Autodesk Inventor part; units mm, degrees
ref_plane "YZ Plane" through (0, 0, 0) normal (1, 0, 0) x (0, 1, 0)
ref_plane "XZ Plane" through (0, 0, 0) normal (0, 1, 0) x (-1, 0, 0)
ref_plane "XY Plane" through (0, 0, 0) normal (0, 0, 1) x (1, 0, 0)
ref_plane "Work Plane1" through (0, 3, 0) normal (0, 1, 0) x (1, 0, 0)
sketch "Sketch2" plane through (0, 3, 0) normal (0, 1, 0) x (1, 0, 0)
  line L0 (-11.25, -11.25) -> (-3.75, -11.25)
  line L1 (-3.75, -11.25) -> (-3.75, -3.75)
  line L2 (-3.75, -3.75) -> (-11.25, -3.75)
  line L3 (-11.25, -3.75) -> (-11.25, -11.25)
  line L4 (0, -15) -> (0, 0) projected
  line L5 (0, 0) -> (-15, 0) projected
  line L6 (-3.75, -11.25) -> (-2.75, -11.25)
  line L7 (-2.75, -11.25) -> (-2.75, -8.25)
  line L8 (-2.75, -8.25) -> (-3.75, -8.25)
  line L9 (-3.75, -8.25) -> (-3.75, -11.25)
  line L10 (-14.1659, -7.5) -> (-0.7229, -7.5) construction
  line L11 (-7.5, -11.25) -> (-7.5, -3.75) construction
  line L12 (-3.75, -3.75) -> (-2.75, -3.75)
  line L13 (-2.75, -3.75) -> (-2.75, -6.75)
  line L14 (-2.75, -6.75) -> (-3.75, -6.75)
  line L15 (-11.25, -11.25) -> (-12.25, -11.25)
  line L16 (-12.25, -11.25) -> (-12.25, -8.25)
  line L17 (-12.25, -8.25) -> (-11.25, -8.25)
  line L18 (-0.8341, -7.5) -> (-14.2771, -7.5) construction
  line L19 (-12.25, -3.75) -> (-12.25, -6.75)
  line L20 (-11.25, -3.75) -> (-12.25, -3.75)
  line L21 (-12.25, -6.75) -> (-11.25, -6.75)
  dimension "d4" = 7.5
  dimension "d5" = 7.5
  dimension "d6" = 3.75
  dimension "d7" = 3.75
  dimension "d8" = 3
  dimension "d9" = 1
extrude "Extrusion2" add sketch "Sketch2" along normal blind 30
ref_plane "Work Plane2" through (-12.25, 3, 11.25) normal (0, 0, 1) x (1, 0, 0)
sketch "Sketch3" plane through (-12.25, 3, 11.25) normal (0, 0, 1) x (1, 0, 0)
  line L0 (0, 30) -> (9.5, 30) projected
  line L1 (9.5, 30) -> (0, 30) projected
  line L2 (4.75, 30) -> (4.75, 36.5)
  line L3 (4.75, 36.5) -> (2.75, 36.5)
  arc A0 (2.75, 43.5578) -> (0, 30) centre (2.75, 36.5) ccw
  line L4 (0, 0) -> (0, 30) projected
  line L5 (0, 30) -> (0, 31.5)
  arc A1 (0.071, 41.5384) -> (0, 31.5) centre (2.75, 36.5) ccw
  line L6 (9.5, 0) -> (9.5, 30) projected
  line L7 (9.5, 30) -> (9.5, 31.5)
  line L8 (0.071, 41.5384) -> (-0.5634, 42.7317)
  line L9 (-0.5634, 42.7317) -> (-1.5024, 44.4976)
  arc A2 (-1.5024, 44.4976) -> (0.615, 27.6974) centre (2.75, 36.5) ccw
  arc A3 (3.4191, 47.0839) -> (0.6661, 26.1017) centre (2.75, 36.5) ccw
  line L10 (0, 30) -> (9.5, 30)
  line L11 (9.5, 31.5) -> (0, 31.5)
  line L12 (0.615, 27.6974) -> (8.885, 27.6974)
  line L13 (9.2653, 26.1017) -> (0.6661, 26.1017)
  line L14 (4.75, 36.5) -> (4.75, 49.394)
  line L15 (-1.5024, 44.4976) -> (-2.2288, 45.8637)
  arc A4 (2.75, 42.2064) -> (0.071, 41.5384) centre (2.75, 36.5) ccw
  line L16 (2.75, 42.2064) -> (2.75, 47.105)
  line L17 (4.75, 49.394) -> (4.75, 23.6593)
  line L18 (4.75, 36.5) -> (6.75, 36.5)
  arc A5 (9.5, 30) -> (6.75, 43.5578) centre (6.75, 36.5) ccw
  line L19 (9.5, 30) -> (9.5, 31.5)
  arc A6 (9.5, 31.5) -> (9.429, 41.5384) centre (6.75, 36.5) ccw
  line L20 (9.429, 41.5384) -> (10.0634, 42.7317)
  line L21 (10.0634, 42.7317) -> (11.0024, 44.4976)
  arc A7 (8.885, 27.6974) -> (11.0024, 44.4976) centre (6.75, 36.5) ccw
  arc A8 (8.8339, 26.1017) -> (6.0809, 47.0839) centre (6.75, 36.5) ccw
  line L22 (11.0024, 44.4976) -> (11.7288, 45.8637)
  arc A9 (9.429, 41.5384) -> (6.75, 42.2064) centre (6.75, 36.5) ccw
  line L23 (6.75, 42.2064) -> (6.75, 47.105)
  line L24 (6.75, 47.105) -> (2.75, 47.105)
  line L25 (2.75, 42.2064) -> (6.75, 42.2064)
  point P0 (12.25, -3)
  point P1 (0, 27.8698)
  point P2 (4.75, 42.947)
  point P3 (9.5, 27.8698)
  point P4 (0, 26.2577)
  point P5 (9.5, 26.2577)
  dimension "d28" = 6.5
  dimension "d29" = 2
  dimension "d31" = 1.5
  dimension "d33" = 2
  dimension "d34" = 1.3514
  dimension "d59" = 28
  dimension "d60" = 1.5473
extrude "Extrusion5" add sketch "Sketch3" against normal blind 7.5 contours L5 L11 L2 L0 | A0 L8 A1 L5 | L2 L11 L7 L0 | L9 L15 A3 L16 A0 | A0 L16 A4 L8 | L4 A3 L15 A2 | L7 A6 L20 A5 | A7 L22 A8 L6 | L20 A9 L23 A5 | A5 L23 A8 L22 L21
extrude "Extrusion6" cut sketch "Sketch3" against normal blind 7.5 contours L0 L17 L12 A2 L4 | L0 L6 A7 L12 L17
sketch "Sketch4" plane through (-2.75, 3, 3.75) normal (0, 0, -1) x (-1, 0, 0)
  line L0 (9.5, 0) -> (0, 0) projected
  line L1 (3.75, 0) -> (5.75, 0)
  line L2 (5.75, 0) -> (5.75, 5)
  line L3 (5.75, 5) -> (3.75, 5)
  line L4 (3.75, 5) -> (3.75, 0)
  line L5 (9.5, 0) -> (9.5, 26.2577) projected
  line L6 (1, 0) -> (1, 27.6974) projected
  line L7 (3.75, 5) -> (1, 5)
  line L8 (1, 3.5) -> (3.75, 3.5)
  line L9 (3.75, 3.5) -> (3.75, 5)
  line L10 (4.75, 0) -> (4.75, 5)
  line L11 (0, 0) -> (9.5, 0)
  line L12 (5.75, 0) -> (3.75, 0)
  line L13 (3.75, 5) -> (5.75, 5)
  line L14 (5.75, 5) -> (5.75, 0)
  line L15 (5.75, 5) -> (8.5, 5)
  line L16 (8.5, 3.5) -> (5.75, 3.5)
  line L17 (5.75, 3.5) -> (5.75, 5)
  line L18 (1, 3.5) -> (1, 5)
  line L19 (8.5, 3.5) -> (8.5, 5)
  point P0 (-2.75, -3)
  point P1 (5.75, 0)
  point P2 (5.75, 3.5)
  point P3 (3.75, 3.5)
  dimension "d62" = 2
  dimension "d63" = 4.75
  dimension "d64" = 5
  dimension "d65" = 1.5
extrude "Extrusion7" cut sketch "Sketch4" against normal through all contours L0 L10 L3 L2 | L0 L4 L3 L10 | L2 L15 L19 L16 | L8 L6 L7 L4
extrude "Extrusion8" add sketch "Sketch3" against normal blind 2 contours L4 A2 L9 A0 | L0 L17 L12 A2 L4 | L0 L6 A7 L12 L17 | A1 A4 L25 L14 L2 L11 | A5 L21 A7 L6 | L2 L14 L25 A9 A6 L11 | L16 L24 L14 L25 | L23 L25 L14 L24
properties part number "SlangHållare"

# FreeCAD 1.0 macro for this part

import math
import FreeCAD as App
import Part
import Sketcher
from FreeCAD import Vector

doc = App.newDocument("Part")
body = doc.addObject("PartDesign::Body", "Body")

# Sketch on XZ plane
sketch1 = doc.addObject("Sketcher::SketchObject", "Sketch")
body.addObject(sketch1)
sketch1.AttachmentSupport = (doc.XZ_Plane, [""])
sketch1.MapMode = "FlatFace"
sketch1.AttachmentOffset = App.Placement(Vector(0, 0, -3), App.Rotation())
sketch1.addGeometry([
    Part.LineSegment(Vector(-11.2, 6.8, 0), Vector(-11.2, 8.2, 0)),  # 0
    Part.LineSegment(Vector(-11.2, 8.2, 0), Vector(-12.2, 8.2, 0)),  # 1
    Part.LineSegment(Vector(-12.2, 8.2, 0), Vector(-12.2, 11.2, 0)),  # 2
    Part.LineSegment(Vector(-12.2, 11.2, 0), Vector(-2.8, 11.2, 0)),  # 3
    Part.LineSegment(Vector(-2.8, 11.2, 0), Vector(-2.8, 8.2, 0)),  # 4
    Part.LineSegment(Vector(-2.8, 8.2, 0), Vector(-3.8, 8.2, 0)),  # 5
    Part.LineSegment(Vector(-3.8, 8.2, 0), Vector(-3.8, 6.8, 0)),  # 6
    Part.LineSegment(Vector(-3.8, 6.8, 0), Vector(-2.8, 6.8, 0)),  # 7
    Part.LineSegment(Vector(-2.8, 6.8, 0), Vector(-2.8, 3.8, 0)),  # 8
    Part.LineSegment(Vector(-2.8, 3.8, 0), Vector(-12.2, 3.8, 0)),  # 9
    Part.LineSegment(Vector(-12.2, 3.8, 0), Vector(-12.2, 6.8, 0)),  # 10
    Part.LineSegment(Vector(-12.2, 6.8, 0), Vector(-11.2, 6.8, 0)),  # 11
], False)
sketch1.addConstraint([
    Sketcher.Constraint("Coincident", 0, 2, 1, 1),
    Sketcher.Constraint("Coincident", 1, 2, 2, 1),
    Sketcher.Constraint("Coincident", 2, 2, 3, 1),
    Sketcher.Constraint("Coincident", 3, 2, 4, 1),
    Sketcher.Constraint("Coincident", 4, 2, 5, 1),
    Sketcher.Constraint("Coincident", 5, 2, 6, 1),
    Sketcher.Constraint("Coincident", 6, 2, 7, 1),
    Sketcher.Constraint("Coincident", 7, 2, 8, 1),
    Sketcher.Constraint("Coincident", 8, 2, 9, 1),
    Sketcher.Constraint("Coincident", 9, 2, 10, 1),
    Sketcher.Constraint("Coincident", 10, 2, 11, 1),
    Sketcher.Constraint("Coincident", 11, 2, 0, 1),
    Sketcher.Constraint("Vertical", 0),
    Sketcher.Constraint("Horizontal", 1),
    Sketcher.Constraint("Vertical", 2),
    Sketcher.Constraint("Horizontal", 3),
    Sketcher.Constraint("Vertical", 4),
    Sketcher.Constraint("Horizontal", 5),
    Sketcher.Constraint("Vertical", 6),
    Sketcher.Constraint("Horizontal", 7),
    Sketcher.Constraint("Vertical", 8),
    Sketcher.Constraint("Horizontal", 9),
    Sketcher.Constraint("Vertical", 10),
    Sketcher.Constraint("Horizontal", 11),
    Sketcher.Constraint("Horizontal", 1, 2, 4, 2),
    Sketcher.Constraint("Horizontal", 7, 2, 10, 2),
    Sketcher.Constraint("Vertical", 4, 2, 7, 2),
    Sketcher.Constraint("Vertical", 2, 2, 9, 2),
    Sketcher.Constraint("Equal", 1, 5),
    Sketcher.Constraint("Equal", 4, 8),
    Sketcher.Constraint("DistanceX", 1, 2, 1, 1, 1.0),
    Sketcher.Constraint("DistanceY", 2, 1, 2, 2, 3.0),
    Sketcher.Constraint("DistanceX", 0, 2, 5, 2, 7.5),
    Sketcher.Constraint("DistanceY", 8, 2, 3, 2, 7.5),
    Sketcher.Constraint("DistanceX", 5, 2, -1, 1, 3.75),
    Sketcher.Constraint("DistanceY", -1, 1, 8, 2, 3.75),
])
pad1 = doc.addObject("PartDesign::Pad", "Pad")
body.addObject(pad1)
pad1.Profile = sketch1
pad1.Length = 30
pad1.Reversed = True

# Sketch on XY plane
sketch2 = doc.addObject("Sketcher::SketchObject", "Sketch001")
body.addObject(sketch2)
sketch2.AttachmentSupport = (doc.XY_Plane, [""])
sketch2.MapMode = "FlatFace"
sketch2.AttachmentOffset = App.Placement(Vector(0, 0, 11.25), App.Rotation())
sketch2.addGeometry([
    Part.ArcOfCircle(Part.Circle(Vector(-9.5, 39.5, 0), Vector(0, 0, 1), 5.7), math.radians(118), math.radians(241)),  # 0
    Part.ArcOfCircle(Part.Circle(Vector(-9.5, 39.5, 0), Vector(0, 0, 1), 5.7), math.radians(90), math.radians(118)),  # 1
    Part.LineSegment(Vector(-9.5, 45.2, 0), Vector(-9.5, 50.1, 0)),  # 2
    Part.ArcOfCircle(Part.Circle(Vector(-9.5, 39.5, 0), Vector(0, 0, 1), 10.6), math.radians(90), math.radians(255)),  # 3
    Part.LineSegment(Vector(-12.2, 29.3, 0), Vector(-12.2, 30.9, 0)),  # 4
    Part.ArcOfCircle(Part.Circle(Vector(-9.5, 39.5, 0), Vector(0, 0, 1), 9.1), math.radians(118), math.radians(252)),  # 5
    Part.LineSegment(Vector(-13.8, 47.5, 0), Vector(-12.8, 45.7, 0)),  # 6
    Part.ArcOfCircle(Part.Circle(Vector(-9.5, 39.5, 0), Vector(0, 0, 1), 7.1), math.radians(118), math.radians(247)),  # 7
    Part.LineSegment(Vector(-12.2, 33, 0), Vector(-2.8, 33, 0)),  # 8
    Part.ArcOfCircle(Part.Circle(Vector(-5.5, 39.5, 0), Vector(0, 0, 1), 7.1), math.radians(-67), math.radians(62)),  # 9
    Part.LineSegment(Vector(-2.2, 45.7, 0), Vector(-1.2, 47.5, 0)),  # 10
    Part.ArcOfCircle(Part.Circle(Vector(-5.5, 39.5, 0), Vector(0, 0, 1), 9.1), math.radians(-72), math.radians(62)),  # 11
    Part.LineSegment(Vector(-2.8, 30.9, 0), Vector(-2.8, 29.3, 0)),  # 12
    Part.ArcOfCircle(Part.Circle(Vector(-5.5, 39.5, 0), Vector(0, 0, 1), 10.6), math.radians(-75), math.radians(90)),  # 13
    Part.LineSegment(Vector(-5.5, 50.1, 0), Vector(-5.5, 45.2, 0)),  # 14
    Part.ArcOfCircle(Part.Circle(Vector(-5.5, 39.5, 0), Vector(0, 0, 1), 5.7), math.radians(62), math.radians(90)),  # 15
    Part.ArcOfCircle(Part.Circle(Vector(-5.5, 39.5, 0), Vector(0, 0, 1), 5.7), math.radians(-61), math.radians(62)),  # 16
    Part.LineSegment(Vector(-2.8, 34.5, 0), Vector(-12.2, 34.5, 0)),  # 17
], False)
sketch2.addConstraint([
    Sketcher.Constraint("Tangent", 0, 1, 1, 2),
    Sketcher.Constraint("Coincident", 1, 1, 2, 1),
    Sketcher.Constraint("Coincident", 2, 2, 3, 1),
    Sketcher.Constraint("Coincident", 3, 2, 4, 1),
    Sketcher.Constraint("Coincident", 4, 2, 5, 2),
    Sketcher.Constraint("Coincident", 5, 1, 6, 1),
    Sketcher.Constraint("Coincident", 6, 2, 7, 1),
    Sketcher.Constraint("Coincident", 7, 2, 8, 1),
    Sketcher.Constraint("Coincident", 8, 2, 9, 1),
    Sketcher.Constraint("Coincident", 9, 2, 10, 1),
    Sketcher.Constraint("Coincident", 10, 2, 11, 2),
    Sketcher.Constraint("Coincident", 11, 1, 12, 1),
    Sketcher.Constraint("Coincident", 12, 2, 13, 1),
    Sketcher.Constraint("Coincident", 13, 2, 14, 1),
    Sketcher.Constraint("Coincident", 14, 2, 15, 2),
    Sketcher.Constraint("Tangent", 15, 1, 16, 2),
    Sketcher.Constraint("Coincident", 16, 1, 17, 1),
    Sketcher.Constraint("Coincident", 17, 2, 0, 2),
    Sketcher.Constraint("Vertical", 2),
    Sketcher.Constraint("Vertical", 4),
    Sketcher.Constraint("Horizontal", 8),
    Sketcher.Constraint("Vertical", 12),
    Sketcher.Constraint("Vertical", 14),
    Sketcher.Constraint("Horizontal", 17),
    Sketcher.Constraint("Coincident", 3, 3, 0, 3),
    Sketcher.Constraint("Coincident", 5, 3, 0, 3),
    Sketcher.Constraint("Coincident", 7, 3, 0, 3),
    Sketcher.Constraint("Coincident", 11, 3, 9, 3),
    Sketcher.Constraint("Coincident", 13, 3, 9, 3),
    Sketcher.Constraint("Coincident", 15, 3, 9, 3),
    Sketcher.Constraint("Equal", 0, 1),
    Sketcher.Constraint("Equal", 7, 9),
    Sketcher.Constraint("Equal", 5, 11),
    Sketcher.Constraint("Equal", 3, 13),
    Sketcher.Constraint("Equal", 1, 15),
    Sketcher.Constraint("Equal", 15, 16),
    Sketcher.Constraint("Horizontal", 7, 3, 9, 3),
    Sketcher.Constraint("Horizontal", 6, 2, 9, 2),
    Sketcher.Constraint("Horizontal", 5, 1, 10, 2),
    Sketcher.Constraint("Horizontal", 4, 2, 11, 1),
    Sketcher.Constraint("Horizontal", 0, 1, 15, 1),
    Sketcher.Constraint("Vertical", 7, 3, 1, 1),
    Sketcher.Constraint("Vertical", 4, 2, 7, 2),
    Sketcher.Constraint("Vertical", 16, 3, 13, 2),
    Sketcher.Constraint("Vertical", 12, 2, 16, 1),
    Sketcher.Constraint("Distance", 6, 2.0),
    Sketcher.Constraint("DistanceY", 7, 2, 0, 3, 6.5),
    Sketcher.Constraint("DistanceY", 8, 2, 16, 1, 1.5),
    Sketcher.Constraint("DistanceX", 8, 1, 8, 2, 9.5),
    Sketcher.Constraint("DistanceY", -1, 1, 7, 2, 33.0),
    Sketcher.Constraint("Radius", 3, 10.605),
    Sketcher.Constraint("DistanceX", 0, 3, 9, 3, 4.0),
    Sketcher.Constraint("DistanceX", 0, 3, -1, 1, 9.5),
    Sketcher.Constraint("DistanceX", 0, 1, -1, 1, 12.179),
    Sketcher.Constraint("DistanceX", 5, 1, 6, 2, 0.939),
    Sketcher.Constraint("DistanceX", 5, 1, -1, 1, 13.7524),
])
pad2 = doc.addObject("PartDesign::Pad", "Pad001")
body.addObject(pad2)
pad2.Profile = sketch2
pad2.Length = 7.5
pad2.Reversed = True

# Sketch on XY plane
sketch3 = doc.addObject("Sketcher::SketchObject", "Sketch002")
body.addObject(sketch3)
sketch3.AttachmentSupport = (doc.XY_Plane, [""])
sketch3.MapMode = "FlatFace"
sketch3.AttachmentOffset = App.Placement(Vector(0, 0, 11.25), App.Rotation())
sketch3.addGeometry([
    Part.LineSegment(Vector(-12.2, 33, 0), Vector(-12.2, 30.9, 0)),  # 0
    Part.ArcOfCircle(Part.Circle(Vector(-9.5, 39.5, 0), Vector(0, 0, 1), 9.1), math.radians(-107.67), math.radians(-103.63)),  # 1
    Part.LineSegment(Vector(-11.6, 30.7, 0), Vector(-3.4, 30.7, 0)),  # 2
    Part.ArcOfCircle(Part.Circle(Vector(-5.5, 39.5, 0), Vector(0, 0, 1), 9.1), math.radians(-76.37), math.radians(-72.33)),  # 3
    Part.LineSegment(Vector(-2.8, 30.9, 0), Vector(-2.8, 33, 0)),  # 4
    Part.LineSegment(Vector(-2.8, 33, 0), Vector(-12.2, 33, 0)),  # 5
], False)
sketch3.addConstraint([
    Sketcher.Constraint("Coincident", 0, 2, 1, 1),
    Sketcher.Constraint("Coincident", 1, 2, 2, 1),
    Sketcher.Constraint("Coincident", 2, 2, 3, 1),
    Sketcher.Constraint("Coincident", 3, 2, 4, 1),
    Sketcher.Constraint("Coincident", 4, 2, 5, 1),
    Sketcher.Constraint("Coincident", 5, 2, 0, 1),
    Sketcher.Constraint("Vertical", 0),
    Sketcher.Constraint("Horizontal", 2),
    Sketcher.Constraint("Vertical", 4),
    Sketcher.Constraint("Horizontal", 5),
    Sketcher.Constraint("Equal", 1, 3),
    Sketcher.Constraint("Horizontal", 1, 3, 3, 3),
    Sketcher.Constraint("Horizontal", 0, 2, 3, 2),
    Sketcher.Constraint("DistanceY", 4, 2, 3, 3, 6.5),
    Sketcher.Constraint("DistanceX", 5, 2, 5, 1, 9.5),
    Sketcher.Constraint("DistanceY", -1, 1, 4, 2, 33.0),
    Sketcher.Constraint("DistanceX", 1, 3, 3, 3, 4.0),
    Sketcher.Constraint("DistanceX", 2, 1, 2, 2, 8.27),
    Sketcher.Constraint("DistanceX", 1, 3, -1, 1, 9.5),
    Sketcher.Constraint("Radius", 1, 9.0578),
])
pocket1 = doc.addObject("PartDesign::Pocket", "Pocket")
body.addObject(pocket1)
pocket1.Profile = sketch3
pocket1.Length = 7.5

# Sketch on XY plane
sketch4 = doc.addObject("Sketcher::SketchObject", "Sketch003")
body.addObject(sketch4)
sketch4.AttachmentSupport = (doc.XY_Plane, [""])
sketch4.MapMode = "FlatFace"
sketch4.AttachmentOffset = App.Placement(Vector(0, 0, 3.75), App.Rotation())
sketch4.addGeometry([
    Part.LineSegment(Vector(-8.5, 3, 0), Vector(-8.5, 6.5, 0)),  # 0
    Part.LineSegment(Vector(-8.5, 6.5, 0), Vector(-11.2, 6.5, 0)),  # 1
    Part.LineSegment(Vector(-11.2, 6.5, 0), Vector(-11.2, 8, 0)),  # 2
    Part.LineSegment(Vector(-11.2, 8, 0), Vector(-3.8, 8, 0)),  # 3
    Part.LineSegment(Vector(-3.8, 8, 0), Vector(-3.8, 6.5, 0)),  # 4
    Part.LineSegment(Vector(-3.8, 6.5, 0), Vector(-6.5, 6.5, 0)),  # 5
    Part.LineSegment(Vector(-6.5, 6.5, 0), Vector(-6.5, 3, 0)),  # 6
    Part.LineSegment(Vector(-6.5, 3, 0), Vector(-8.5, 3, 0)),  # 7
], False)
sketch4.addConstraint([
    Sketcher.Constraint("Coincident", 0, 2, 1, 1),
    Sketcher.Constraint("Coincident", 1, 2, 2, 1),
    Sketcher.Constraint("Coincident", 2, 2, 3, 1),
    Sketcher.Constraint("Coincident", 3, 2, 4, 1),
    Sketcher.Constraint("Coincident", 4, 2, 5, 1),
    Sketcher.Constraint("Coincident", 5, 2, 6, 1),
    Sketcher.Constraint("Coincident", 6, 2, 7, 1),
    Sketcher.Constraint("Coincident", 7, 2, 0, 1),
    Sketcher.Constraint("Vertical", 0),
    Sketcher.Constraint("Horizontal", 1),
    Sketcher.Constraint("Vertical", 2),
    Sketcher.Constraint("Horizontal", 3),
    Sketcher.Constraint("Vertical", 4),
    Sketcher.Constraint("Horizontal", 5),
    Sketcher.Constraint("Vertical", 6),
    Sketcher.Constraint("Horizontal", 7),
    Sketcher.Constraint("Horizontal", 1, 2, 4, 2),
    Sketcher.Constraint("Equal", 1, 5),
    Sketcher.Constraint("DistanceX", 7, 2, 7, 1, 2.0),
    Sketcher.Constraint("DistanceY", 2, 1, 2, 2, 1.5),
    Sketcher.Constraint("DistanceY", 6, 2, 3, 2, 5.0),
    Sketcher.Constraint("DistanceX", 0, 2, 3, 2, 4.75),
    Sketcher.Constraint("DistanceY", -1, 1, 2, 2, 8.0),
    Sketcher.Constraint("DistanceX", 0, 2, -1, 1, 8.5),
])
pocket2 = doc.addObject("PartDesign::Pocket", "Pocket001")
body.addObject(pocket2)
pocket2.Profile = sketch4
pocket2.Type = "ThroughAll"
pocket2.Reversed = True

# Sketch on XY plane
sketch5 = doc.addObject("Sketcher::SketchObject", "Sketch004")
body.addObject(sketch5)
sketch5.AttachmentSupport = (doc.XY_Plane, [""])
sketch5.MapMode = "FlatFace"
sketch5.AttachmentOffset = App.Placement(Vector(0, 0, 11.25), App.Rotation())
sketch5.addGeometry([
    Part.ArcOfCircle(Part.Circle(Vector(-9.5, 39.5, 0), Vector(0, 0, 1), 9.1), math.radians(118), math.radians(256)),  # 0
    Part.LineSegment(Vector(-11.6, 30.7, 0), Vector(-3.4, 30.7, 0)),  # 1
    Part.ArcOfCircle(Part.Circle(Vector(-5.5, 39.5, 0), Vector(0, 0, 1), 9.1), math.radians(-76), math.radians(62)),  # 2
    Part.LineSegment(Vector(-1.2, 47.5, 0), Vector(-2.2, 45.7, 0)),  # 3
    Part.ArcOfCircle(Part.Circle(Vector(-5.5, 39.5, 0), Vector(0, 0, 1), 7.1), math.radians(-67), math.radians(62)),  # 4
    Part.LineSegment(Vector(-2.8, 33, 0), Vector(-12.2, 33, 0)),  # 5
    Part.ArcOfCircle(Part.Circle(Vector(-9.5, 39.5, 0), Vector(0, 0, 1), 7.1), math.radians(118), math.radians(247)),  # 6
    Part.LineSegment(Vector(-12.8, 45.7, 0), Vector(-13.8, 47.5, 0)),  # 7
    Part.ArcOfCircle(Part.Circle(Vector(-9.5, 39.5, 0), Vector(0, 0, 1), 5.7), math.radians(118), math.radians(241)),  # 8
    Part.LineSegment(Vector(-12.2, 34.5, 0), Vector(-2.8, 34.5, 0)),  # 9
    Part.ArcOfCircle(Part.Circle(Vector(-5.5, 39.5, 0), Vector(0, 0, 1), 5.7), math.radians(-61), math.radians(62)),  # 10
    Part.ArcOfCircle(Part.Circle(Vector(-5.5, 39.5, 0), Vector(0, 0, 1), 5.7), math.radians(62), math.radians(90)),  # 11
    Part.LineSegment(Vector(-5.5, 45.2, 0), Vector(-5.5, 50.1, 0)),  # 12
    Part.LineSegment(Vector(-5.5, 50.1, 0), Vector(-9.5, 50.1, 0)),  # 13
    Part.LineSegment(Vector(-9.5, 50.1, 0), Vector(-9.5, 45.2, 0)),  # 14
    Part.ArcOfCircle(Part.Circle(Vector(-9.5, 39.5, 0), Vector(0, 0, 1), 5.7), math.radians(90), math.radians(118)),  # 15
], False)
sketch5.addConstraint([
    Sketcher.Constraint("Coincident", 0, 2, 1, 1),
    Sketcher.Constraint("Coincident", 1, 2, 2, 1),
    Sketcher.Constraint("Coincident", 2, 2, 3, 1),
    Sketcher.Constraint("Coincident", 3, 2, 4, 2),
    Sketcher.Constraint("Coincident", 4, 1, 5, 1),
    Sketcher.Constraint("Coincident", 5, 2, 6, 2),
    Sketcher.Constraint("Coincident", 6, 1, 7, 1),
    Sketcher.Constraint("Coincident", 7, 2, 0, 1),
    Sketcher.Constraint("Coincident", 8, 2, 9, 1),
    Sketcher.Constraint("Coincident", 9, 2, 10, 1),
    Sketcher.Constraint("Tangent", 10, 2, 11, 1),
    Sketcher.Constraint("Coincident", 11, 2, 12, 1),
    Sketcher.Constraint("Coincident", 12, 2, 13, 1),
    Sketcher.Constraint("Coincident", 13, 2, 14, 1),
    Sketcher.Constraint("Coincident", 14, 2, 15, 1),
    Sketcher.Constraint("Tangent", 15, 2, 8, 1),
    Sketcher.Constraint("Horizontal", 1),
    Sketcher.Constraint("Horizontal", 5),
    Sketcher.Constraint("Horizontal", 9),
    Sketcher.Constraint("Vertical", 12),
    Sketcher.Constraint("Horizontal", 13),
    Sketcher.Constraint("Vertical", 14),
    Sketcher.Constraint("Coincident", 4, 3, 2, 3),
    Sketcher.Constraint("Coincident", 6, 3, 0, 3),
    Sketcher.Constraint("Coincident", 8, 3, 0, 3),
    Sketcher.Constraint("Coincident", 10, 3, 2, 3),
    Sketcher.Constraint("Equal", 0, 2),
    Sketcher.Constraint("Equal", 4, 6),
    Sketcher.Constraint("Equal", 8, 10),
    Sketcher.Constraint("Equal", 10, 11),
    Sketcher.Constraint("Equal", 11, 15),
    Sketcher.Constraint("Horizontal", 0, 3, 2, 3),
    Sketcher.Constraint("Horizontal", 3, 2, 6, 1),
    Sketcher.Constraint("Horizontal", 2, 2, 7, 2),
    Sketcher.Constraint("Horizontal", 10, 2, 15, 2),
    Sketcher.Constraint("Vertical", 5, 2, 8, 2),
    Sketcher.Constraint("Vertical", 10, 3, 11, 2),
    Sketcher.Constraint("Vertical", 15, 3, 13, 2),
    Sketcher.Constraint("Distance", 3, 2.0),
    Sketcher.Constraint("DistanceY", 4, 1, 2, 3, 6.5),
    Sketcher.Constraint("DistanceY", 5, 2, 8, 2, 1.5),
    Sketcher.Constraint("DistanceX", 13, 2, 13, 1, 4.0),
    Sketcher.Constraint("DistanceX", 5, 2, 5, 1, 9.5),
    Sketcher.Constraint("DistanceY", -1, 1, 4, 1, 33.0),
    Sketcher.Constraint("DistanceX", 1, 1, 1, 2, 8.27),
    Sketcher.Constraint("DistanceX", 0, 3, -1, 1, 9.5),
    Sketcher.Constraint("DistanceY", 12, 1, 12, 2, 4.8986),
    Sketcher.Constraint("DistanceX", 10, 2, -1, 1, 2.821),
    Sketcher.Constraint("DistanceX", 3, 2, 2, 2, 0.939),
    Sketcher.Constraint("DistanceX", 2, 2, -1, 1, 1.2476),
])
pad3 = doc.addObject("PartDesign::Pad", "Pad002")
body.addObject(pad3)
pad3.Profile = sketch5
pad3.Length = 2
pad3.Reversed = True

doc.recompute()
